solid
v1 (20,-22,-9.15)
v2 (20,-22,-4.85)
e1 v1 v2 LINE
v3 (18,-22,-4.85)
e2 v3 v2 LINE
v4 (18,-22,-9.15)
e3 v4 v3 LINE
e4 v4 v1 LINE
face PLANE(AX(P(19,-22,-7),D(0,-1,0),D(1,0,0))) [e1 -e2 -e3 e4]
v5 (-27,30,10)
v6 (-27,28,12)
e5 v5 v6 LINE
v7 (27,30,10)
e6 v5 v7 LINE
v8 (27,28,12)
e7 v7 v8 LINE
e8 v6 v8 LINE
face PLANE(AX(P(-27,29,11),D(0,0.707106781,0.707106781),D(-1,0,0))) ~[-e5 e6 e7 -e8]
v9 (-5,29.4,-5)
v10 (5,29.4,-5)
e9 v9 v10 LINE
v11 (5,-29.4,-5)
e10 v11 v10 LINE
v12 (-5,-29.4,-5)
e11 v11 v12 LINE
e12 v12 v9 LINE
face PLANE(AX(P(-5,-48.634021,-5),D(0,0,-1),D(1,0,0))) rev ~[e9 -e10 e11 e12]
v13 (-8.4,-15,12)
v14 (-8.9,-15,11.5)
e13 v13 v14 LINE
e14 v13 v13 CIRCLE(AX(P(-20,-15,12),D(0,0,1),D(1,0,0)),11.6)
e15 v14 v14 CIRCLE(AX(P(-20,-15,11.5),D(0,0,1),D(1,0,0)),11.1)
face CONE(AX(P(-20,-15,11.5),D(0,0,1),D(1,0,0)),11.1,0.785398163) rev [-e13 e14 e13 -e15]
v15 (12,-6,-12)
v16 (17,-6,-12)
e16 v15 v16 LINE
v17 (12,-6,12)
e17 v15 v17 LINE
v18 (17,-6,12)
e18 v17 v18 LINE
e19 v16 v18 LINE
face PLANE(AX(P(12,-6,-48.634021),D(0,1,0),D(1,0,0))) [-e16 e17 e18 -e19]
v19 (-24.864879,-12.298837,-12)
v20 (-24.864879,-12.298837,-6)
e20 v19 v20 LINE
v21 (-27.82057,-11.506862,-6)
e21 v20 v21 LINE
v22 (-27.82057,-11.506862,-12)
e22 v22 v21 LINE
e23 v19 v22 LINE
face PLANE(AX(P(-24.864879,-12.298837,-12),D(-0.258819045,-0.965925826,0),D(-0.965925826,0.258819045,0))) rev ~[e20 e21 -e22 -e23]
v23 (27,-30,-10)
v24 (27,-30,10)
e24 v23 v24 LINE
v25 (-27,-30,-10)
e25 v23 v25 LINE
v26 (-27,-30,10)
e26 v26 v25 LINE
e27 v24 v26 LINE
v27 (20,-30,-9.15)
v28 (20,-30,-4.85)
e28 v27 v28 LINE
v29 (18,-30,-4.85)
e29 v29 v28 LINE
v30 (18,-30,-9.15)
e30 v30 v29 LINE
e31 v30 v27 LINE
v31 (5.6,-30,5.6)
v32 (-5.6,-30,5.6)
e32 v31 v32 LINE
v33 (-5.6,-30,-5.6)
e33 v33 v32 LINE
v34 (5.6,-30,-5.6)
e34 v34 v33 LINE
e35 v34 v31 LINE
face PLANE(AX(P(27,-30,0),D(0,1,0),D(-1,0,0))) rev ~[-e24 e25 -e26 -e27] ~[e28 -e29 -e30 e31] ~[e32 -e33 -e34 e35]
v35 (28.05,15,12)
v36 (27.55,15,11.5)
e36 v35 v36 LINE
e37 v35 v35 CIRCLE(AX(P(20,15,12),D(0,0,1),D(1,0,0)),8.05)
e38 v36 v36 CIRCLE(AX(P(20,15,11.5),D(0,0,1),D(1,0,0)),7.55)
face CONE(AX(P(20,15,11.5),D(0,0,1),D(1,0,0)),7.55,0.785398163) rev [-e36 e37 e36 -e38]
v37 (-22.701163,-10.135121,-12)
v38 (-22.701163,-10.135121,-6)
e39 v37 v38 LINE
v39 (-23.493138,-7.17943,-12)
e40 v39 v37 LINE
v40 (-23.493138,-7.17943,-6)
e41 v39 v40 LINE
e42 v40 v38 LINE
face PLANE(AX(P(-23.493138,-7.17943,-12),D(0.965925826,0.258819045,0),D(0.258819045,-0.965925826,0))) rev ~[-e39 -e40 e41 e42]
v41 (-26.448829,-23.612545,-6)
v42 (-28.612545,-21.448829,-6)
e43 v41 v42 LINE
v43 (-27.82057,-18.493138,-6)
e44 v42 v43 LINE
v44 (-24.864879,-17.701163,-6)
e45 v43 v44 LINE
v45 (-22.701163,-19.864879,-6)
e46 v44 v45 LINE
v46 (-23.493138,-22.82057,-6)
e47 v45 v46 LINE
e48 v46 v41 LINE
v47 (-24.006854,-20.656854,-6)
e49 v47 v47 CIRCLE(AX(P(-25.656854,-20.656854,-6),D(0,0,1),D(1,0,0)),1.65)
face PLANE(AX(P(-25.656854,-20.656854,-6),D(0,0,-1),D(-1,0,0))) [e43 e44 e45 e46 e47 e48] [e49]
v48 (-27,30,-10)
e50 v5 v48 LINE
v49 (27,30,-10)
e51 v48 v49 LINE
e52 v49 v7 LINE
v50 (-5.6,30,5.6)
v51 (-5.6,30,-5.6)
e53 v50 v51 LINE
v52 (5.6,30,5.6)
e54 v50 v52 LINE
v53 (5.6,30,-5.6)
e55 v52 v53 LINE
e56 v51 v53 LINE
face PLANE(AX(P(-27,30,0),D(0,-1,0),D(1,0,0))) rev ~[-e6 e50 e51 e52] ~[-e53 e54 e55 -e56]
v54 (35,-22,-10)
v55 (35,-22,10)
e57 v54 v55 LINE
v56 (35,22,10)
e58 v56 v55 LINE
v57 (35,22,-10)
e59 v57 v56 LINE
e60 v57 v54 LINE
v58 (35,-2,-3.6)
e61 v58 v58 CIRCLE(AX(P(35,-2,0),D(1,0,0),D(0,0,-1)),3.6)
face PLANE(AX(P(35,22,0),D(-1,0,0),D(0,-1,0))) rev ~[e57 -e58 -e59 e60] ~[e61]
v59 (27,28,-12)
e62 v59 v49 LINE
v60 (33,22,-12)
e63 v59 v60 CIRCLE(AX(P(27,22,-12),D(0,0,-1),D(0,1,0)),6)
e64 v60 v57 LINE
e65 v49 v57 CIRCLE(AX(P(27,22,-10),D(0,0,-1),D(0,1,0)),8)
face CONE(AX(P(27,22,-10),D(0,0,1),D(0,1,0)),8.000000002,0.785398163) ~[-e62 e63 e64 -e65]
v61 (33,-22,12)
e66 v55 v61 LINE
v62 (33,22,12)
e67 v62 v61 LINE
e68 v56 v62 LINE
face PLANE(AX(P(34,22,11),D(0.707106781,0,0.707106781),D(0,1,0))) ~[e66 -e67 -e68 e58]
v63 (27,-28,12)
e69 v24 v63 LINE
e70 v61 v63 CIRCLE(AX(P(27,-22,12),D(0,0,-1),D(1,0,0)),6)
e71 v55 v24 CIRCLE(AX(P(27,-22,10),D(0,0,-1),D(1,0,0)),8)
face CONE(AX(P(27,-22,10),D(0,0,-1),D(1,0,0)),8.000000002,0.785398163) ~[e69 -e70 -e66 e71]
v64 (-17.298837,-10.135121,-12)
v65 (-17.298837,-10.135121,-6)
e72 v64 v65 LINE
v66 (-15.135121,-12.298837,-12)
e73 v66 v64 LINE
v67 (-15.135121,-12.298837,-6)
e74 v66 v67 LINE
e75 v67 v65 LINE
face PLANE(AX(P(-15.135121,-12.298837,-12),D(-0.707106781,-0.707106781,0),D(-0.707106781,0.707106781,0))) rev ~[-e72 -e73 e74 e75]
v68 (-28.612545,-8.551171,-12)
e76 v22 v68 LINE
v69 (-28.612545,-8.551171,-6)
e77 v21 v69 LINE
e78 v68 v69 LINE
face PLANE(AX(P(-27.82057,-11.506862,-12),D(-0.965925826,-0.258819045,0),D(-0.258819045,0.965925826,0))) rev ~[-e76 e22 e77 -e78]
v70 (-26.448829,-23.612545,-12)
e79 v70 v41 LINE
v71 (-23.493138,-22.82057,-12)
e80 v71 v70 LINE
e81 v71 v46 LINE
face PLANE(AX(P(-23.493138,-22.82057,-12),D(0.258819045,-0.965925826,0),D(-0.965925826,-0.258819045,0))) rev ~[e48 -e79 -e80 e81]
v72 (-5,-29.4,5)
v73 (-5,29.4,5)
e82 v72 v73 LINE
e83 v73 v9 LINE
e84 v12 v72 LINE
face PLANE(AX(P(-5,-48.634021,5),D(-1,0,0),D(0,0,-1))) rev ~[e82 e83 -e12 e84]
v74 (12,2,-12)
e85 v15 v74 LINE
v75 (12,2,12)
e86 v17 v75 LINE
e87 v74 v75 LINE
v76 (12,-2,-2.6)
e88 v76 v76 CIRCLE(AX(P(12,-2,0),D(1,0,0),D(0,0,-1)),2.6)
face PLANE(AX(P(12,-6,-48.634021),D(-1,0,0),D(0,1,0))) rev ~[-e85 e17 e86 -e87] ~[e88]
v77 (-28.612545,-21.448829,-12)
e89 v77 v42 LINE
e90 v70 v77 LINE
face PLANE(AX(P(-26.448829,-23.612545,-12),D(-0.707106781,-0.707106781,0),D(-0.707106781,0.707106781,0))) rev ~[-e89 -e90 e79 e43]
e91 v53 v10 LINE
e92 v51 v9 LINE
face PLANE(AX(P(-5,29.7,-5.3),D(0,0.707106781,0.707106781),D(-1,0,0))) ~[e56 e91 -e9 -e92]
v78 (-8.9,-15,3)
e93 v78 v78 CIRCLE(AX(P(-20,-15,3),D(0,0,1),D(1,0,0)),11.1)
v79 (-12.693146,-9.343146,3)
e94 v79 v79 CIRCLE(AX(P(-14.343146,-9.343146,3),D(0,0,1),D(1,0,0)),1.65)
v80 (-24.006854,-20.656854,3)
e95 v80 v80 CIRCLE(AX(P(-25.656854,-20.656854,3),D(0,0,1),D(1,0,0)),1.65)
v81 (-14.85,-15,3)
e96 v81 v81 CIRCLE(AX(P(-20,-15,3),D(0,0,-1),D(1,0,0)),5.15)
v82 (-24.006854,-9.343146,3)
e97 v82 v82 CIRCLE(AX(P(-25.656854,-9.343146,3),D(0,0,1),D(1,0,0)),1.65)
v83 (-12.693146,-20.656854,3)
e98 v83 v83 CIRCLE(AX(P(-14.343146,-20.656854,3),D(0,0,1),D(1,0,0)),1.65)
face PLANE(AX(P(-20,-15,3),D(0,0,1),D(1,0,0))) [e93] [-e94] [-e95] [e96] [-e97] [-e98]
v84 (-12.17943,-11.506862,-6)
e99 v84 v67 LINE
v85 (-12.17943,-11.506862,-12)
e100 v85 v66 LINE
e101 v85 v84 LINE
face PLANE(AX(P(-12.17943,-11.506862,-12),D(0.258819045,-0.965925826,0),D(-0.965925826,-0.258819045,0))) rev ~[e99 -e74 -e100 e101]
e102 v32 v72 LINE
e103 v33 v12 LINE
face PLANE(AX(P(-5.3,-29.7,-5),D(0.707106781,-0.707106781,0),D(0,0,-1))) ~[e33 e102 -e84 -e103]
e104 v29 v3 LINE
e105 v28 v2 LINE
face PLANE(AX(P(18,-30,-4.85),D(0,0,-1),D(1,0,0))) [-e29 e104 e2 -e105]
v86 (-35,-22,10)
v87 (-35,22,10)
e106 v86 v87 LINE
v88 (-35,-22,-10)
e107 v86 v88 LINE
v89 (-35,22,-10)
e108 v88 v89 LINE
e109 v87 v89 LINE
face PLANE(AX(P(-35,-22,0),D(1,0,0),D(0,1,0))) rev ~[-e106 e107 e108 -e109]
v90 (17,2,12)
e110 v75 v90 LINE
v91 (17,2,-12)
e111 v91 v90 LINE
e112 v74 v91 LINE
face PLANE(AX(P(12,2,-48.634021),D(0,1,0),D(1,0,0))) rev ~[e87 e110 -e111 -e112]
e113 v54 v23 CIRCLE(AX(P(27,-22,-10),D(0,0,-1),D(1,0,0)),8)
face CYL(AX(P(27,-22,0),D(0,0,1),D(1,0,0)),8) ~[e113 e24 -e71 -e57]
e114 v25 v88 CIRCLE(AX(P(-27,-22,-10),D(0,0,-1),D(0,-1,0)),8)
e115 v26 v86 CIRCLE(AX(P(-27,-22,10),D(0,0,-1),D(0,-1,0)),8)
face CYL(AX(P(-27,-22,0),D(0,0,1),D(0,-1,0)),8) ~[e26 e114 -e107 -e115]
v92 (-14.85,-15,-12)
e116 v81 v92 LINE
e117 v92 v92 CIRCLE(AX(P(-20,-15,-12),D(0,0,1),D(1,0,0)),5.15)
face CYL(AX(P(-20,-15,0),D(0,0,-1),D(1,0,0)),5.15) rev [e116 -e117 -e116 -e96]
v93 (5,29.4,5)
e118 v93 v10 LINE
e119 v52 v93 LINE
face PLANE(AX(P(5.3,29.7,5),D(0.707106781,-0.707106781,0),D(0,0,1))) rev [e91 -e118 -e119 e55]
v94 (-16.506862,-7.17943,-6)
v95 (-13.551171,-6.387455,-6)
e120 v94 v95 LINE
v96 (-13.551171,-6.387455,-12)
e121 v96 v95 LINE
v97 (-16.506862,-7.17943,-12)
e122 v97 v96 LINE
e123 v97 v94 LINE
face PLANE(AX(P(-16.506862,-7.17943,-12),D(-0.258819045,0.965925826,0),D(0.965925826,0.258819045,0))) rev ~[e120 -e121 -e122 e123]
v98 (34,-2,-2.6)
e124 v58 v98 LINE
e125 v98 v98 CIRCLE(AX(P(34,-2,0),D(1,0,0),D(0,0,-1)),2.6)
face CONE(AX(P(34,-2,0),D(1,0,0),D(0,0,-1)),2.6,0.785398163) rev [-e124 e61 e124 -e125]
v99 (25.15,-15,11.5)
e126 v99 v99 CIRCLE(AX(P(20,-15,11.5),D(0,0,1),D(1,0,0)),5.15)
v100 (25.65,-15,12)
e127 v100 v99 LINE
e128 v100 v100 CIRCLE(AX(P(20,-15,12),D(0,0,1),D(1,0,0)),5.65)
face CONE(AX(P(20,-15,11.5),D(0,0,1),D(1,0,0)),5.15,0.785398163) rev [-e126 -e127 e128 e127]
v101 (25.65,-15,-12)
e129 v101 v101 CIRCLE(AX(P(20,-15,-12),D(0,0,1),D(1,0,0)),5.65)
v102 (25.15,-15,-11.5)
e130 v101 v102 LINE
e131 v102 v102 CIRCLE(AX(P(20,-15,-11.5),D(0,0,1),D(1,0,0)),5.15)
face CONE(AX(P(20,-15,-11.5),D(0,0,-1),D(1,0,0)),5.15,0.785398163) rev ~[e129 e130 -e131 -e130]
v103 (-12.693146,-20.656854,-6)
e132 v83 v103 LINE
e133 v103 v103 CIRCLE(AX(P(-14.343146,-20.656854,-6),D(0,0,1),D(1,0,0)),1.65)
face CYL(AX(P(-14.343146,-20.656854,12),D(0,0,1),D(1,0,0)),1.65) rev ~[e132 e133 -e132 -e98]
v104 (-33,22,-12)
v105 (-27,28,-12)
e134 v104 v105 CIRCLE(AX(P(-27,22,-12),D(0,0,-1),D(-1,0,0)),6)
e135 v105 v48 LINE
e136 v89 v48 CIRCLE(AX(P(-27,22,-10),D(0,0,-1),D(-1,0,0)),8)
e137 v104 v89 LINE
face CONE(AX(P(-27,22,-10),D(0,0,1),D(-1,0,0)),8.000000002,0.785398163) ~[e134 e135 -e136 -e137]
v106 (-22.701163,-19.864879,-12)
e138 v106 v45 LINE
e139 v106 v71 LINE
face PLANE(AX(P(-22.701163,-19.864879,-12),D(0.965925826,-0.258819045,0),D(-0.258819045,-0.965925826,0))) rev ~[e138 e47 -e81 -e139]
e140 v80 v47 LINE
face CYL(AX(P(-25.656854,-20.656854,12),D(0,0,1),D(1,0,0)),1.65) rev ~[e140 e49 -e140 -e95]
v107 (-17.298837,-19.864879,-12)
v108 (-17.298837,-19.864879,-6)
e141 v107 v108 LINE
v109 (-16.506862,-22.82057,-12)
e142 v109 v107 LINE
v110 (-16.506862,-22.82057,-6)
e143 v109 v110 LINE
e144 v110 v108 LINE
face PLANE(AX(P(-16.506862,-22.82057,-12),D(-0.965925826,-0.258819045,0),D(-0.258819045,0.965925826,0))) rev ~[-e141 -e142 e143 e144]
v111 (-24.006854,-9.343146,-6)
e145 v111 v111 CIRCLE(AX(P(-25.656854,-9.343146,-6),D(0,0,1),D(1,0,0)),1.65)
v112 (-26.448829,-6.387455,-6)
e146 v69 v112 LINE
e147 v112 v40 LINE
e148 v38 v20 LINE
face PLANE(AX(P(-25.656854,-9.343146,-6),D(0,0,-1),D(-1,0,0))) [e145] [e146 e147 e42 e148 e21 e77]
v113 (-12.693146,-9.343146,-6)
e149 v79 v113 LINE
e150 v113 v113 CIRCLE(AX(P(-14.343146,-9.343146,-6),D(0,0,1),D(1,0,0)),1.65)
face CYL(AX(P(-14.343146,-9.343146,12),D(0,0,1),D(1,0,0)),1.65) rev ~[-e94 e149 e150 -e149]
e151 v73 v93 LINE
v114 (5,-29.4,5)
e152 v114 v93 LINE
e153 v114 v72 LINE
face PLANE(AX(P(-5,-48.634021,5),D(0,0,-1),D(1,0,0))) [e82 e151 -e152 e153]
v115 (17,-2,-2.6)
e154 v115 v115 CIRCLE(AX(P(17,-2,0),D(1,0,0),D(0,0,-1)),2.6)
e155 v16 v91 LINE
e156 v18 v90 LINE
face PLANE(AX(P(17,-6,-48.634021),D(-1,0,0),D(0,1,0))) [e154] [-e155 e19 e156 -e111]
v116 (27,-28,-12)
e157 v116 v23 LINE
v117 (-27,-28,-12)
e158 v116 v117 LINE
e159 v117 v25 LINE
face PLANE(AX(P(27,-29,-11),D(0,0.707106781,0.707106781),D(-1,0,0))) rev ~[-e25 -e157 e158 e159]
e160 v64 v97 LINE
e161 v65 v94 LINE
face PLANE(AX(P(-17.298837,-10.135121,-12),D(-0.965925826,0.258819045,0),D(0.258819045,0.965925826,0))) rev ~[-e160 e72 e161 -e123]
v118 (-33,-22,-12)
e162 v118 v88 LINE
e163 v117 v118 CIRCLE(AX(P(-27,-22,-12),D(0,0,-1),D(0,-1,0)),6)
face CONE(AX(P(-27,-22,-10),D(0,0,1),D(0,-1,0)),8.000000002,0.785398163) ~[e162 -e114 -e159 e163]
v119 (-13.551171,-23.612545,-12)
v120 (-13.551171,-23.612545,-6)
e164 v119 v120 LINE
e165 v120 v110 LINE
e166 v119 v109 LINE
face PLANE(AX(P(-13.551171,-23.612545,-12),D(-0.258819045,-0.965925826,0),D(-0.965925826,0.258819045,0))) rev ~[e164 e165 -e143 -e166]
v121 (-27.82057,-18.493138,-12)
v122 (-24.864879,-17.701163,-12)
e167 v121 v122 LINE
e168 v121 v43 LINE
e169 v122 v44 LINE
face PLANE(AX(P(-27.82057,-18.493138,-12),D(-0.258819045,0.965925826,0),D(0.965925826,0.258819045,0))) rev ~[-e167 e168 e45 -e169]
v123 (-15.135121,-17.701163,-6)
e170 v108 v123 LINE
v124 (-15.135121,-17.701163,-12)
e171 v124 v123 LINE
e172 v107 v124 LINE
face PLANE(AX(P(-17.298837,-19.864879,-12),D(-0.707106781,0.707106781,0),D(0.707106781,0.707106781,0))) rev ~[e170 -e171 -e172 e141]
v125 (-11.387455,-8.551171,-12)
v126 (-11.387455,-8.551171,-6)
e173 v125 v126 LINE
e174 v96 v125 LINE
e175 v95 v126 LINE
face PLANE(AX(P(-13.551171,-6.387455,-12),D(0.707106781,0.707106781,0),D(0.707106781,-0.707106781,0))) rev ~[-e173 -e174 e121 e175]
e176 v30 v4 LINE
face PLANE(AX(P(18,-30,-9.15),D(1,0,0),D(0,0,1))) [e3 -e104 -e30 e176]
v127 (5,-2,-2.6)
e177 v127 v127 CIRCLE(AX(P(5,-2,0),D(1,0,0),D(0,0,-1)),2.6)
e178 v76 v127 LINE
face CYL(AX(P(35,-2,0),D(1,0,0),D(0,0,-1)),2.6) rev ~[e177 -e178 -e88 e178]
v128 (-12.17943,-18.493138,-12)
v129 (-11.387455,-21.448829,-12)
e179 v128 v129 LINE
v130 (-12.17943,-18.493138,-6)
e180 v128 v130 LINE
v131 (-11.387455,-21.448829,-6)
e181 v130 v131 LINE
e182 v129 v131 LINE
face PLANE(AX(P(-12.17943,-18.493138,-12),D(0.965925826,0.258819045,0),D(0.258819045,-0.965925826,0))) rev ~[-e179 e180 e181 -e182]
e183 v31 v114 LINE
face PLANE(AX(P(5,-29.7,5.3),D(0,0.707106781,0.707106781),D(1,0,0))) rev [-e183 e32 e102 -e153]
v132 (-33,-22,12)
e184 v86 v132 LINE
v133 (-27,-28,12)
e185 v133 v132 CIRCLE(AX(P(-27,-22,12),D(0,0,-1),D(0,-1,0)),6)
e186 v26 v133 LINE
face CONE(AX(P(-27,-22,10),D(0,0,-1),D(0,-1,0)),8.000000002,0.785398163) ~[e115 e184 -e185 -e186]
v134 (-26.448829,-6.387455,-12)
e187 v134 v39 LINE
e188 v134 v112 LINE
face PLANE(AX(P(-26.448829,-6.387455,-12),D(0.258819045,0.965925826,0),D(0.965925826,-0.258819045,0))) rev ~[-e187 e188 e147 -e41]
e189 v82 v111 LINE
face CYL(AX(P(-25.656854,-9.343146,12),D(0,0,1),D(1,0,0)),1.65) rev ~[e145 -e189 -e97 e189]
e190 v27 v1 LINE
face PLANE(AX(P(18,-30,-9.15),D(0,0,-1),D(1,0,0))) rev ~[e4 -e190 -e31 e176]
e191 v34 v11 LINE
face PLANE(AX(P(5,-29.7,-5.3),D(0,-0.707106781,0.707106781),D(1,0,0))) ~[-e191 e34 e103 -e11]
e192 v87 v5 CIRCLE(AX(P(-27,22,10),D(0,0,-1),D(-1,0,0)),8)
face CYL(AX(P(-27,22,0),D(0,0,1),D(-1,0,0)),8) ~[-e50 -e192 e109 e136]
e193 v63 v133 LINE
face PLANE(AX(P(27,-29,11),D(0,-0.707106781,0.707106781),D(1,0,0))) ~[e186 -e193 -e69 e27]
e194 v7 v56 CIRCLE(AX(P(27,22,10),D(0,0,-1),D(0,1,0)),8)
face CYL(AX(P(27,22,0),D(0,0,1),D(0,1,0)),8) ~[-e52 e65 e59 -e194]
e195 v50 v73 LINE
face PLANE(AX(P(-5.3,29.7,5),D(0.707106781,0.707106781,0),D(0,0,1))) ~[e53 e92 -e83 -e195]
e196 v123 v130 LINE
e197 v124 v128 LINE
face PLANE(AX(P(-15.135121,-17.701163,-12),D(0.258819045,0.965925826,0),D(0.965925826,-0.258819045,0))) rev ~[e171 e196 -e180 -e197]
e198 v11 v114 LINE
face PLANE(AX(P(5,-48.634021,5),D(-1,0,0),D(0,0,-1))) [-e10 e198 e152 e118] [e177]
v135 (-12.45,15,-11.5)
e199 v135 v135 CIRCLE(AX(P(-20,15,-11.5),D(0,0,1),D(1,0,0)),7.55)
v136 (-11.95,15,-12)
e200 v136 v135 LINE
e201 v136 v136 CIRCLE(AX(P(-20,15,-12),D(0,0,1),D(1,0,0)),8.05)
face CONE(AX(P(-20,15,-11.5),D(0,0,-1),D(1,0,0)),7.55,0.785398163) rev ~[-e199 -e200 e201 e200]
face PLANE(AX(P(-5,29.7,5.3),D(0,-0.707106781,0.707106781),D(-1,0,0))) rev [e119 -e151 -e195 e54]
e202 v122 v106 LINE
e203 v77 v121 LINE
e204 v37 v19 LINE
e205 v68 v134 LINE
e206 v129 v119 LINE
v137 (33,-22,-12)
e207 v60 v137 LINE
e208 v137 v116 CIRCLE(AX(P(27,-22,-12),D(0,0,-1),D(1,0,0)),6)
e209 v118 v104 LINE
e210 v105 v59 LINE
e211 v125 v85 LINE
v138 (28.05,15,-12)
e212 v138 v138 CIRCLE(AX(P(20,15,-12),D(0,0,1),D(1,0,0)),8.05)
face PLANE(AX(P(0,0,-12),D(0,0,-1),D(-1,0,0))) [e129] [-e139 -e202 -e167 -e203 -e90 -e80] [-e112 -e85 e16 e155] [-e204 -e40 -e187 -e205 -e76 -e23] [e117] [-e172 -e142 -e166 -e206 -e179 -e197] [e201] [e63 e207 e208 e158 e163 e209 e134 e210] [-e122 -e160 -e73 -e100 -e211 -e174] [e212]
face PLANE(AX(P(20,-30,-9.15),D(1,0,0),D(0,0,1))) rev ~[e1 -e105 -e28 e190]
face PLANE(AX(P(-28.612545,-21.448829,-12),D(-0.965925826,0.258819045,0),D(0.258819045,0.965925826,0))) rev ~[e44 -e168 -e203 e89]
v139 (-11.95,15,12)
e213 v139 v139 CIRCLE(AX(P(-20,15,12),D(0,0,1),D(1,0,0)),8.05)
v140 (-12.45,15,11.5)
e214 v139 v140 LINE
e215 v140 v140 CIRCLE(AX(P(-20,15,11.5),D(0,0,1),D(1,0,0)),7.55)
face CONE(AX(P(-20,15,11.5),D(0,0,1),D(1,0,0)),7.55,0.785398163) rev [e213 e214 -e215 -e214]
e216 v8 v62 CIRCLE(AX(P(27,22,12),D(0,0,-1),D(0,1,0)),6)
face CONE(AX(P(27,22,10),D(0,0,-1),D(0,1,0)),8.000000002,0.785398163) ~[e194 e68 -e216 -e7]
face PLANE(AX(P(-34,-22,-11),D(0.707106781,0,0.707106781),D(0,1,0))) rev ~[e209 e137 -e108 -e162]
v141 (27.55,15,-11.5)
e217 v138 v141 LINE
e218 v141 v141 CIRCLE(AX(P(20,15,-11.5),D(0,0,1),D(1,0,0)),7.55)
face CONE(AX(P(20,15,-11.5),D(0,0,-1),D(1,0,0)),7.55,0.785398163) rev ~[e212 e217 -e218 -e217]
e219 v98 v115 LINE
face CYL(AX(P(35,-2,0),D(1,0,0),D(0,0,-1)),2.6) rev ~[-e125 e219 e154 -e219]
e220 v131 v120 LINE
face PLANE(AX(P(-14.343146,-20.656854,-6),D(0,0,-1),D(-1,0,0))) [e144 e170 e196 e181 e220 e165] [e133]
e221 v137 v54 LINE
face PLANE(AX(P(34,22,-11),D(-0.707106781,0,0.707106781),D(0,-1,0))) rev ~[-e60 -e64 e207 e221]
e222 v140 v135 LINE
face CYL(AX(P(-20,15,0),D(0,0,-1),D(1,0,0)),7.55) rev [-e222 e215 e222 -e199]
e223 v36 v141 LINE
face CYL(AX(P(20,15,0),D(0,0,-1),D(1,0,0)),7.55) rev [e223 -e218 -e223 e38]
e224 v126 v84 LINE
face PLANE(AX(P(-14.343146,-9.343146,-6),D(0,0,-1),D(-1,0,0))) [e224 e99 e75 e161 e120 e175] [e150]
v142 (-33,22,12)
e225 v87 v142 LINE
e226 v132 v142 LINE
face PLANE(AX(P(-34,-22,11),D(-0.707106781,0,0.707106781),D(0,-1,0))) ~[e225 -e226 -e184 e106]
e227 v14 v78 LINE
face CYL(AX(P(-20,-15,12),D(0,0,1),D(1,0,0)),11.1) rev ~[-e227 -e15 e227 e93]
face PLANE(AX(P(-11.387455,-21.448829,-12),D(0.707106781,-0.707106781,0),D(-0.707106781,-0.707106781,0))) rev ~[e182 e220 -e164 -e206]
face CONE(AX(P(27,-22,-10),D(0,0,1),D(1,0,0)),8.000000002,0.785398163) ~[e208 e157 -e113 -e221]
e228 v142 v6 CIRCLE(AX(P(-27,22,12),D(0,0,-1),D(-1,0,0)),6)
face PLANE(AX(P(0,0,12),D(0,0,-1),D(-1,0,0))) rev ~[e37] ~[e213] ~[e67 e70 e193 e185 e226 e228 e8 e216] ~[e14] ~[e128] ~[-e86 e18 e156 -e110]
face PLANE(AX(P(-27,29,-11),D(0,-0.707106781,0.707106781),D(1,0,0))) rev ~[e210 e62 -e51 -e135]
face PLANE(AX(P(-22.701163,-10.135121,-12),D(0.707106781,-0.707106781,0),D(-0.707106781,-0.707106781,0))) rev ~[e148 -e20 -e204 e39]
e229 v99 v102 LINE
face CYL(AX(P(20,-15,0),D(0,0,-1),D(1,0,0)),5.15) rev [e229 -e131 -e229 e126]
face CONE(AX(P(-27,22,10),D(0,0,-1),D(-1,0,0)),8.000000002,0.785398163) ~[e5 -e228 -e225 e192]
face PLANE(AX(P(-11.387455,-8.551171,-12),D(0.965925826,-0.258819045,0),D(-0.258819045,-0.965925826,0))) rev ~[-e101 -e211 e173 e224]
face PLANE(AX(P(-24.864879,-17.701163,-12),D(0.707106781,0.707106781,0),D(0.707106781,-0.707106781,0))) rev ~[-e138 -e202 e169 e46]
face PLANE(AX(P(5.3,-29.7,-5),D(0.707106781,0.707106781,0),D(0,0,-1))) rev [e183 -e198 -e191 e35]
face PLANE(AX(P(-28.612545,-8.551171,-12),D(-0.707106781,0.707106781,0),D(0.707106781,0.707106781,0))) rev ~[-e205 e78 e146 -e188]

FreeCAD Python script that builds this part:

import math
import FreeCAD as App
import Part
import Sketcher

V = App.Vector
Q = App.Units.Quantity


def edges_at(feature, points):
    """Names of the edges that pass closest to the given points."""
    edges = feature.Shape.Edges
    near = lambda p: min(range(len(edges)), key=lambda i: edges[i].distToShape(Part.Vertex(*p))[0])
    return sorted({f"Edge{near(p) + 1}" for p in points})

doc = App.newDocument("Part")
params = doc.addObject("Spreadsheet::Sheet", "Params")
for row, (alias, value) in enumerate([
    ("sketch1_radius", "8 mm"),
    ("sketch1_diameter", "10.3 mm"),
    ("sketch1_diameter2", "15.1 mm"),
    ("sketch1_width", "54 mm"),
    ("sketch1_height", "44 mm"),
    ("pad1_length", "24 mm"),
    ("sketch2_diameter", "22.2 mm"),
    ("pocket1_length", "9 mm"),
    ("sketch3_diameter", "3.3 mm"),
    ("pocket3_length", "6 mm"),
    ("sketch5_width", "10 mm"),
    ("chamfer_size", "2 mm"),
    ("chamfer2_size", "0.5 mm"),
    ("sketch6_diameter", "5.2 mm"),
    ("pocket5_length", "33 mm"),
    ("sketch7_width", "5 mm"),
    ("sketch7_height", "8 mm"),
    ("chamfer3_size", "1 mm"),
    ("chamfer4_size", "0.6 mm"),
    ("sketch8_width", "2 mm"),
    ("sketch8_height", "4.3 mm"),
    ("pocket7_length", "8 mm"),
], start=1):
    params.set(f"A{row}", alias)
    params.set(f"B{row}", "=" + value)
    params.setAlias(f"B{row}", alias)

body = doc.addObject("PartDesign::Body", "Body")

# Sketch on XY plane
sketch1 = body.newObject("Sketcher::SketchObject", "Sketch")
sketch1.AttachmentSupport = (doc.getObject("XY_Plane"), [""])
sketch1.MapMode = "FlatFace"
sketch1.addGeometry(Part.LineSegment(V(-27, -30, 0), V(27, -30, 0)), False)
sketch1.addGeometry(Part.ArcOfCircle(Part.Circle(V(27, -22, 0), V(0, 0, 1), 8), math.radians(-90), math.radians(0)), False)
sketch1.addGeometry(Part.LineSegment(V(35, -22, 0), V(35, 22, 0)), False)
sketch1.addGeometry(Part.ArcOfCircle(Part.Circle(V(27, 22, 0), V(0, 0, 1), 8), math.radians(0), math.radians(90)), False)
sketch1.addGeometry(Part.LineSegment(V(27, 30, 0), V(-27, 30, 0)), False)
sketch1.addGeometry(Part.ArcOfCircle(Part.Circle(V(-27, 22, 0), V(0, 0, 1), 8), math.radians(90), math.radians(180)), False)
sketch1.addGeometry(Part.LineSegment(V(-35, 22, 0), V(-35, -22, 0)), False)
sketch1.addGeometry(Part.ArcOfCircle(Part.Circle(V(-27, -22, 0), V(0, 0, 1), 8), math.radians(-180), math.radians(-90)), False)
sketch1.addGeometry(Part.Circle(V(20, -15, 0), V(0, 0, 1), 5.15), False)
sketch1.addGeometry(Part.Circle(V(-20, -15, 0), V(0, 0, 1), 5.15), False)
sketch1.addGeometry(Part.Circle(V(20, 15, 0), V(0, 0, 1), 7.55), False)
sketch1.addGeometry(Part.Circle(V(-20, 15, 0), V(0, 0, 1), 7.55), False)
sketch1.addConstraint(Sketcher.Constraint("Tangent", 0, 2, 1, 1))
sketch1.addConstraint(Sketcher.Constraint("Tangent", 1, 2, 2, 1))
sketch1.addConstraint(Sketcher.Constraint("Tangent", 2, 2, 3, 1))
sketch1.addConstraint(Sketcher.Constraint("Tangent", 3, 2, 4, 1))
sketch1.addConstraint(Sketcher.Constraint("Tangent", 4, 2, 5, 1))
sketch1.addConstraint(Sketcher.Constraint("Tangent", 5, 2, 6, 1))
sketch1.addConstraint(Sketcher.Constraint("Tangent", 6, 2, 7, 1))
sketch1.addConstraint(Sketcher.Constraint("Tangent", 7, 2, 0, 1))
sketch1.addConstraint(Sketcher.Constraint("Horizontal", 0))
sketch1.addConstraint(Sketcher.Constraint("Vertical", 2))
sketch1.addConstraint(Sketcher.Constraint("Horizontal", 4))
sketch1.addConstraint(Sketcher.Constraint("Vertical", 6))
sketch1.addConstraint(Sketcher.Constraint("Equal", 1, 3))
sketch1.addConstraint(Sketcher.Constraint("Equal", 3, 5))
sketch1.addConstraint(Sketcher.Constraint("Equal", 5, 7))
sketch1.addConstraint(Sketcher.Constraint("Equal", 8, 9))
sketch1.addConstraint(Sketcher.Constraint("Equal", 10, 11))
sketch1.addConstraint(Sketcher.Constraint("Symmetric", 1, 3, 5, 3, -1, 1))
sketch1.addConstraint(Sketcher.Constraint("Symmetric", 9, 3, 10, 3, -1, 1))
sketch1.addConstraint(Sketcher.Constraint("Symmetric", 8, 3, 11, 3, -1, 1))
sketch1.addConstraint(Sketcher.Constraint("Symmetric", 8, 3, 9, 3, -2))
sketch1.addConstraint(Sketcher.Constraint("Radius", 1, 8.0))
sketch1.addConstraint(Sketcher.Constraint("Diameter", 8, 10.3))
sketch1.addConstraint(Sketcher.Constraint("Diameter", 10, 15.1))
sketch1.addConstraint(Sketcher.Constraint("DistanceX", 0, 1, 0, 2, 54.0))
sketch1.addConstraint(Sketcher.Constraint("DistanceY", 2, 1, 2, 2, 44.0))
sketch1.addConstraint(Sketcher.Constraint("DistanceX", -1, 1, 8, 3, 20.0))
sketch1.addConstraint(Sketcher.Constraint("DistanceY", 8, 3, -1, 1, 15.0))
sketch1.setExpression("Constraints[21]", "Params.sketch1_radius")
sketch1.setExpression("Constraints[22]", "Params.sketch1_diameter")
sketch1.setExpression("Constraints[23]", "Params.sketch1_diameter2")
sketch1.setExpression("Constraints[24]", "Params.sketch1_width")
sketch1.setExpression("Constraints[25]", "Params.sketch1_height")
pad1 = body.newObject("PartDesign::Pad", "Pad")
pad1.Profile = sketch1
pad1.setExpression("Length", "Params.pad1_length")
pad1.Midplane = True

# Sketch on XY plane
sketch2 = body.newObject("Sketcher::SketchObject", "Sketch001")
sketch2.AttachmentSupport = (doc.getObject("XY_Plane"), [""])
sketch2.MapMode = "FlatFace"
sketch2.AttachmentOffset = App.Placement(V(0, 0, 12), App.Rotation())
sketch2.addGeometry(Part.Circle(V(-20, -15, 0), V(0, 0, 1), 11.1), False)
sketch2.addConstraint(Sketcher.Constraint("Diameter", 0, 22.2))
sketch2.addConstraint(Sketcher.Constraint("DistanceX", 0, 3, -1, 1, 20.0))
sketch2.addConstraint(Sketcher.Constraint("DistanceY", 0, 3, -1, 1, 15.0))
sketch2.setExpression("Constraints[0]", "Params.sketch2_diameter")
pocket1 = body.newObject("PartDesign::Pocket", "Pocket")
pocket1.Profile = sketch2
pocket1.setExpression("Length", "Params.pocket1_length")

# Sketch on XY plane
sketch3 = body.newObject("Sketcher::SketchObject", "Sketch002")
sketch3.AttachmentSupport = (doc.getObject("XY_Plane"), [""])
sketch3.MapMode = "FlatFace"
sketch3.AttachmentOffset = App.Placement(V(0, 0, 12), App.Rotation())
sketch3.addGeometry(Part.Circle(V(-25.656854, -9.343146, 0), V(0, 0, 1), 1.65), False)
sketch3.addGeometry(Part.Circle(V(-14.343146, -9.343146, 0), V(0, 0, 1), 1.65), False)
sketch3.addGeometry(Part.Circle(V(-14.343146, -20.656854, 0), V(0, 0, 1), 1.65), False)
sketch3.addGeometry(Part.Circle(V(-25.656854, -20.656854, 0), V(0, 0, 1), 1.65), False)
sketch3.addConstraint(Sketcher.Constraint("Equal", 0, 1))
sketch3.addConstraint(Sketcher.Constraint("Equal", 1, 2))
sketch3.addConstraint(Sketcher.Constraint("Equal", 2, 3))
sketch3.addConstraint(Sketcher.Constraint("Horizontal", 0, 3, 1, 3))
sketch3.addConstraint(Sketcher.Constraint("Horizontal", 2, 3, 3, 3))
sketch3.addConstraint(Sketcher.Constraint("Vertical", 1, 3, 2, 3))
sketch3.addConstraint(Sketcher.Constraint("Vertical", 0, 3, 3, 3))
sketch3.addConstraint(Sketcher.Constraint("Diameter", 0, 3.3))
sketch3.addConstraint(Sketcher.Constraint("DistanceX", 0, 3, 1, 3, 11.313708))
sketch3.addConstraint(Sketcher.Constraint("DistanceY", 2, 3, 1, 3, 11.313708))
sketch3.addConstraint(Sketcher.Constraint("DistanceX", 0, 3, -1, 1, 25.656854))
sketch3.addConstraint(Sketcher.Constraint("DistanceY", 0, 3, -1, 1, 9.343146))
sketch3.setExpression("Constraints[7]", "Params.sketch3_diameter")
pocket2 = body.newObject("PartDesign::Pocket", "Pocket001")
pocket2.Profile = sketch3
pocket2.Type = "ThroughAll"

# Sketch on XY plane
sketch4 = body.newObject("Sketcher::SketchObject", "Sketch003")
sketch4.AttachmentSupport = (doc.getObject("XY_Plane"), [""])
sketch4.MapMode = "FlatFace"
sketch4.AttachmentOffset = App.Placement(V(0, 0, -12), App.Rotation())
sketch4.addGeometry(Part.LineSegment(V(-17.298837, -10.135121, 0), V(-16.506862, -7.17943, 0)), False)
sketch4.addGeometry(Part.LineSegment(V(-16.506862, -7.17943, 0), V(-13.551171, -6.387455, 0)), False)
sketch4.addGeometry(Part.LineSegment(V(-13.551171, -6.387455, 0), V(-11.387455, -8.551171, 0)), False)
sketch4.addGeometry(Part.LineSegment(V(-11.387455, -8.551171, 0), V(-12.17943, -11.506862, 0)), False)
sketch4.addGeometry(Part.LineSegment(V(-12.17943, -11.506862, 0), V(-15.135121, -12.298837, 0)), False)
sketch4.addGeometry(Part.LineSegment(V(-15.135121, -12.298837, 0), V(-17.298837, -10.135121, 0)), False)
sketch4.addGeometry(Part.LineSegment(V(-23.493138, -7.17943, 0), V(-22.701163, -10.135121, 0)), False)
sketch4.addGeometry(Part.LineSegment(V(-22.701163, -10.135121, 0), V(-24.864879, -12.298837, 0)), False)
sketch4.addGeometry(Part.LineSegment(V(-24.864879, -12.298837, 0), V(-27.82057, -11.506862, 0)), False)
sketch4.addGeometry(Part.LineSegment(V(-27.82057, -11.506862, 0), V(-28.612545, -8.551171, 0)), False)
sketch4.addGeometry(Part.LineSegment(V(-28.612545, -8.551171, 0), V(-26.448829, -6.387455, 0)), False)
sketch4.addGeometry(Part.LineSegment(V(-26.448829, -6.387455, 0), V(-23.493138, -7.17943, 0)), False)
sketch4.addGeometry(Part.LineSegment(V(-24.864879, -17.701163, 0), V(-22.701163, -19.864879, 0)), False)
sketch4.addGeometry(Part.LineSegment(V(-22.701163, -19.864879, 0), V(-23.493138, -22.82057, 0)), False)
sketch4.addGeometry(Part.LineSegment(V(-23.493138, -22.82057, 0), V(-26.448829, -23.612545, 0)), False)
sketch4.addGeometry(Part.LineSegment(V(-26.448829, -23.612545, 0), V(-28.612545, -21.448829, 0)), False)
sketch4.addGeometry(Part.LineSegment(V(-28.612545, -21.448829, 0), V(-27.82057, -18.493138, 0)), False)
sketch4.addGeometry(Part.LineSegment(V(-27.82057, -18.493138, 0), V(-24.864879, -17.701163, 0)), False)
sketch4.addGeometry(Part.LineSegment(V(-15.135121, -17.701163, 0), V(-12.17943, -18.493138, 0)), False)
sketch4.addGeometry(Part.LineSegment(V(-12.17943, -18.493138, 0), V(-11.387455, -21.448829, 0)), False)
sketch4.addGeometry(Part.LineSegment(V(-11.387455, -21.448829, 0), V(-13.551171, -23.612545, 0)), False)
sketch4.addGeometry(Part.LineSegment(V(-13.551171, -23.612545, 0), V(-16.506862, -22.82057, 0)), False)
sketch4.addGeometry(Part.LineSegment(V(-16.506862, -22.82057, 0), V(-17.298837, -19.864879, 0)), False)
sketch4.addGeometry(Part.LineSegment(V(-17.298837, -19.864879, 0), V(-15.135121, -17.701163, 0)), False)
sketch4.addConstraint(Sketcher.Constraint("Coincident", 0, 2, 1, 1))
sketch4.addConstraint(Sketcher.Constraint("Coincident", 1, 2, 2, 1))
sketch4.addConstraint(Sketcher.Constraint("Coincident", 2, 2, 3, 1))
sketch4.addConstraint(Sketcher.Constraint("Coincident", 3, 2, 4, 1))
sketch4.addConstraint(Sketcher.Constraint("Coincident", 4, 2, 5, 1))
sketch4.addConstraint(Sketcher.Constraint("Coincident", 5, 2, 0, 1))
sketch4.addConstraint(Sketcher.Constraint("Coincident", 6, 2, 7, 1))
sketch4.addConstraint(Sketcher.Constraint("Coincident", 7, 2, 8, 1))
sketch4.addConstraint(Sketcher.Constraint("Coincident", 8, 2, 9, 1))
sketch4.addConstraint(Sketcher.Constraint("Coincident", 9, 2, 10, 1))
sketch4.addConstraint(Sketcher.Constraint("Coincident", 10, 2, 11, 1))
sketch4.addConstraint(Sketcher.Constraint("Coincident", 11, 2, 6, 1))
sketch4.addConstraint(Sketcher.Constraint("Coincident", 12, 2, 13, 1))
sketch4.addConstraint(Sketcher.Constraint("Coincident", 13, 2, 14, 1))
sketch4.addConstraint(Sketcher.Constraint("Coincident", 14, 2, 15, 1))
sketch4.addConstraint(Sketcher.Constraint("Coincident", 15, 2, 16, 1))
sketch4.addConstraint(Sketcher.Constraint("Coincident", 16, 2, 17, 1))
sketch4.addConstraint(Sketcher.Constraint("Coincident", 17, 2, 12, 1))
sketch4.addConstraint(Sketcher.Constraint("Coincident", 18, 2, 19, 1))
sketch4.addConstraint(Sketcher.Constraint("Coincident", 19, 2, 20, 1))
sketch4.addConstraint(Sketcher.Constraint("Coincident", 20, 2, 21, 1))
sketch4.addConstraint(Sketcher.Constraint("Coincident", 21, 2, 22, 1))
sketch4.addConstraint(Sketcher.Constraint("Coincident", 22, 2, 23, 1))
sketch4.addConstraint(Sketcher.Constraint("Coincident", 23, 2, 18, 1))
sketch4.addConstraint(Sketcher.Constraint("Parallel", 0, 3))
sketch4.addConstraint(Sketcher.Constraint("Parallel", 1, 4))
sketch4.addConstraint(Sketcher.Constraint("Parallel", 2, 5))
sketch4.addConstraint(Sketcher.Constraint("Perpendicular", 4, 6))
sketch4.addConstraint(Sketcher.Constraint("Perpendicular", 5, 7))
sketch4.addConstraint(Sketcher.Constraint("Perpendicular", 3, 8))
sketch4.addConstraint(Sketcher.Constraint("Parallel", 6, 9))
sketch4.addConstraint(Sketcher.Constraint("Parallel", 7, 10))
sketch4.addConstraint(Sketcher.Constraint("Parallel", 8, 11))
sketch4.addConstraint(Sketcher.Constraint("Perpendicular", 10, 12))
sketch4.addConstraint(Sketcher.Constraint("Perpendicular", 11, 13))
sketch4.addConstraint(Sketcher.Constraint("Perpendicular", 9, 14))
sketch4.addConstraint(Sketcher.Constraint("Parallel", 12, 15))
sketch4.addConstraint(Sketcher.Constraint("Parallel", 13, 16))
sketch4.addConstraint(Sketcher.Constraint("Parallel", 14, 17))
sketch4.addConstraint(Sketcher.Constraint("Perpendicular", 16, 18))
sketch4.addConstraint(Sketcher.Constraint("Perpendicular", 17, 19))
sketch4.addConstraint(Sketcher.Constraint("Perpendicular", 15, 20))
sketch4.addConstraint(Sketcher.Constraint("Parallel", 18, 21))
sketch4.addConstraint(Sketcher.Constraint("Parallel", 19, 22))
sketch4.addConstraint(Sketcher.Constraint("Parallel", 20, 23))
sketch4.addConstraint(Sketcher.Constraint("Horizontal", 5, 2, 6, 2))
sketch4.addConstraint(Sketcher.Constraint("Horizontal", 4, 2, 7, 2))
sketch4.addConstraint(Sketcher.Constraint("Horizontal", 3, 2, 8, 2))
sketch4.addConstraint(Sketcher.Constraint("Horizontal", 2, 2, 9, 2))
sketch4.addConstraint(Sketcher.Constraint("Horizontal", 1, 2, 10, 2))
sketch4.addConstraint(Sketcher.Constraint("Horizontal", 16, 2, 18, 2))
sketch4.addConstraint(Sketcher.Constraint("Horizontal", 15, 2, 19, 2))
sketch4.addConstraint(Sketcher.Constraint("Horizontal", 14, 2, 20, 2))
sketch4.addConstraint(Sketcher.Constraint("Horizontal", 13, 2, 21, 2))
sketch4.addConstraint(Sketcher.Constraint("Horizontal", 12, 2, 22, 2))
sketch4.addConstraint(Sketcher.Constraint("Vertical", 6, 2, 12, 2))
sketch4.addConstraint(Sketcher.Constraint("Vertical", 11, 2, 13, 2))
sketch4.addConstraint(Sketcher.Constraint("Vertical", 10, 2, 14, 2))
sketch4.addConstraint(Sketcher.Constraint("Vertical", 9, 2, 15, 2))
sketch4.addConstraint(Sketcher.Constraint("Vertical", 8, 2, 16, 2))
sketch4.addConstraint(Sketcher.Constraint("Vertical", 3, 2, 18, 2))
sketch4.addConstraint(Sketcher.Constraint("Vertical", 2, 2, 19, 2))
sketch4.addConstraint(Sketcher.Constraint("Vertical", 1, 2, 20, 2))
sketch4.addConstraint(Sketcher.Constraint("Equal", 0, 1))
sketch4.addConstraint(Sketcher.Constraint("Equal", 1, 2))
sketch4.addConstraint(Sketcher.Constraint("Equal", 2, 3))
sketch4.addConstraint(Sketcher.Constraint("Angle", 0, Q("75 deg")))
sketch4.addConstraint(Sketcher.Constraint("DistanceX", 6, 2, 0, 2, 6.194302))
sketch4.addConstraint(Sketcher.Constraint("DistanceY", 16, 2, 7, 2, 6.194302))
sketch4.addConstraint(Sketcher.Constraint("DistanceX", 0, 2, -1, 1, 16.506862))
sketch4.addConstraint(Sketcher.Constraint("DistanceY", 0, 2, -1, 1, 7.17943))
sketch4.addConstraint(Sketcher.Constraint("DistanceX", 1, 2, -1, 1, 13.551171))
pocket3 = body.newObject("PartDesign::Pocket", "Pocket002")
pocket3.Profile = sketch4
pocket3.setExpression("Length", "Params.pocket3_length")
pocket3.Reversed = True

# Sketch on XZ plane
sketch5 = body.newObject("Sketcher::SketchObject", "Sketch004")
sketch5.AttachmentSupport = (doc.getObject("XZ_Plane"), [""])
sketch5.MapMode = "FlatFace"
sketch5.addGeometry(Part.LineSegment(V(-5, -5, 0), V(-5, 5, 0)), False)
sketch5.addGeometry(Part.LineSegment(V(-5, 5, 0), V(5, 5, 0)), False)
sketch5.addGeometry(Part.LineSegment(V(5, 5, 0), V(5, -5, 0)), False)
sketch5.addGeometry(Part.LineSegment(V(5, -5, 0), V(-5, -5, 0)), False)
sketch5.addConstraint(Sketcher.Constraint("Coincident", 0, 2, 1, 1))
sketch5.addConstraint(Sketcher.Constraint("Coincident", 1, 2, 2, 1))
sketch5.addConstraint(Sketcher.Constraint("Coincident", 2, 2, 3, 1))
sketch5.addConstraint(Sketcher.Constraint("Coincident", 3, 2, 0, 1))
sketch5.addConstraint(Sketcher.Constraint("Vertical", 0))
sketch5.addConstraint(Sketcher.Constraint("Horizontal", 1))
sketch5.addConstraint(Sketcher.Constraint("Vertical", 2))
sketch5.addConstraint(Sketcher.Constraint("Horizontal", 3))
sketch5.addConstraint(Sketcher.Constraint("Symmetric", 0, 2, 2, 2, -1, 1))
sketch5.addConstraint(Sketcher.Constraint("Equal", 3, 0))
sketch5.addConstraint(Sketcher.Constraint("DistanceX", 1, 1, 1, 2, 10.0))
sketch5.setExpression("Constraints[10]", "Params.sketch5_width")
pocket4 = body.newObject("PartDesign::Pocket", "Pocket003")
pocket4.Profile = sketch5
pocket4.Type = "ThroughAll"
pocket4.Midplane = True
doc.recompute()

chamfer = body.newObject("PartDesign::Chamfer", "Chamfer")
chamfer.Base = (pocket4, edges_at(pocket4, [
    (35, 0, -12),
    (32.657, -27.657, -12),
    (0, -30, -12),
    (-32.657, -27.657, -12),
    (32.657, -27.657, 12),
    (35, 0, 12),
    (32.657, 27.657, 12),
    (0, 30, 12),
    (-32.657, 27.657, 12),
    (-35, 0, 12),
    (-32.657, -27.657, 12),
    (-35, 0, -12),
    (0, -30, 12),
    (-32.657, 27.657, -12),
    (0, 30, -12),
    (32.657, 27.657, -12),
]))
chamfer.setExpression("Size", "Params.chamfer_size")
doc.recompute()

chamfer2 = body.newObject("PartDesign::Chamfer", "Chamfer001")
chamfer2.Base = (chamfer, edges_at(chamfer, [
    (-27.55, 15, -12),
    (-27.55, 15, 12),
    (12.45, 15, -12),
    (12.45, 15, 12),
    (14.85, -15, -12),
    (14.85, -15, 12),
    (-31.1, -15, 12),
]))
chamfer2.setExpression("Size", "Params.chamfer2_size")

# Sketch on YZ plane
sketch6 = body.newObject("Sketcher::SketchObject", "Sketch005")
sketch6.AttachmentSupport = (doc.getObject("YZ_Plane"), [""])
sketch6.MapMode = "FlatFace"
sketch6.AttachmentOffset = App.Placement(V(0, 0, 35), App.Rotation())
sketch6.addGeometry(Part.Circle(V(-2, 0, 0), V(0, 0, 1), 2.6), False)
sketch6.addConstraint(Sketcher.Constraint("PointOnObject", 0, 3, -1))
sketch6.addConstraint(Sketcher.Constraint("Diameter", 0, 5.2))
sketch6.addConstraint(Sketcher.Constraint("DistanceX", 0, 3, -1, 1, 2.0))
sketch6.setExpression("Constraints[1]", "Params.sketch6_diameter")
pocket5 = body.newObject("PartDesign::Pocket", "Pocket004")
pocket5.Profile = sketch6
pocket5.setExpression("Length", "Params.pocket5_length")

# Sketch on XY plane
sketch7 = body.newObject("Sketcher::SketchObject", "Sketch006")
sketch7.AttachmentSupport = (doc.getObject("XY_Plane"), [""])
sketch7.MapMode = "FlatFace"
sketch7.addGeometry(Part.LineSegment(V(12, 2, 0), V(12, -6, 0)), False)
sketch7.addGeometry(Part.LineSegment(V(12, -6, 0), V(17, -6, 0)), False)
sketch7.addGeometry(Part.LineSegment(V(17, -6, 0), V(17, 2, 0)), False)
sketch7.addGeometry(Part.LineSegment(V(17, 2, 0), V(12, 2, 0)), False)
sketch7.addConstraint(Sketcher.Constraint("Coincident", 0, 2, 1, 1))
sketch7.addConstraint(Sketcher.Constraint("Coincident", 1, 2, 2, 1))
sketch7.addConstraint(Sketcher.Constraint("Coincident", 2, 2, 3, 1))
sketch7.addConstraint(Sketcher.Constraint("Coincident", 3, 2, 0, 1))
sketch7.addConstraint(Sketcher.Constraint("Vertical", 0))
sketch7.addConstraint(Sketcher.Constraint("Horizontal", 1))
sketch7.addConstraint(Sketcher.Constraint("Vertical", 2))
sketch7.addConstraint(Sketcher.Constraint("Horizontal", 3))
sketch7.addConstraint(Sketcher.Constraint("DistanceX", 1, 1, 1, 2, 5.0))
sketch7.addConstraint(Sketcher.Constraint("DistanceY", 0, 2, 0, 1, 8.0))
sketch7.addConstraint(Sketcher.Constraint("DistanceX", -1, 1, 0, 2, 12.0))
sketch7.addConstraint(Sketcher.Constraint("DistanceY", 0, 2, -1, 1, 6.0))
sketch7.setExpression("Constraints[8]", "Params.sketch7_width")
sketch7.setExpression("Constraints[9]", "Params.sketch7_height")
pocket6 = body.newObject("PartDesign::Pocket", "Pocket005")
pocket6.Profile = sketch7
pocket6.Type = "ThroughAll"
pocket6.Midplane = True
doc.recompute()

chamfer3 = body.newObject("PartDesign::Chamfer", "Chamfer002")
chamfer3.Base = (pocket6, edges_at(pocket6, [(35, -2, 2.6)]))
chamfer3.setExpression("Size", "Params.chamfer3_size")
doc.recompute()

chamfer4 = body.newObject("PartDesign::Chamfer", "Chamfer003")
chamfer4.Base = (chamfer3, edges_at(chamfer3, [
    (-5, -30, 0),
    (0, -30, -5),
    (5, -30, 0),
    (0, -30, 5),
    (-5, 30, 0),
    (0, 30, 5),
    (5, 30, 0),
    (0, 30, -5),
]))
chamfer4.setExpression("Size", "Params.chamfer4_size")

# Sketch on XZ plane
sketch8 = body.newObject("Sketcher::SketchObject", "Sketch007")
sketch8.AttachmentSupport = (doc.getObject("XZ_Plane"), [""])
sketch8.MapMode = "FlatFace"
sketch8.AttachmentOffset = App.Placement(V(0, 0, 30), App.Rotation())
sketch8.addGeometry(Part.LineSegment(V(18, -4.85, 0), V(18, -9.15, 0)), False)
sketch8.addGeometry(Part.LineSegment(V(18, -9.15, 0), V(20, -9.15, 0)), False)
sketch8.addGeometry(Part.LineSegment(V(20, -9.15, 0), V(20, -4.85, 0)), False)
sketch8.addGeometry(Part.LineSegment(V(20, -4.85, 0), V(18, -4.85, 0)), False)
sketch8.addConstraint(Sketcher.Constraint("Coincident", 0, 2, 1, 1))
sketch8.addConstraint(Sketcher.Constraint("Coincident", 1, 2, 2, 1))
sketch8.addConstraint(Sketcher.Constraint("Coincident", 2, 2, 3, 1))
sketch8.addConstraint(Sketcher.Constraint("Coincident", 3, 2, 0, 1))
sketch8.addConstraint(Sketcher.Constraint("Vertical", 0))
sketch8.addConstraint(Sketcher.Constraint("Horizontal", 1))
sketch8.addConstraint(Sketcher.Constraint("Vertical", 2))
sketch8.addConstraint(Sketcher.Constraint("Horizontal", 3))
sketch8.addConstraint(Sketcher.Constraint("DistanceX", 1, 1, 1, 2, 2.0))
sketch8.addConstraint(Sketcher.Constraint("DistanceY", 0, 2, 0, 1, 4.3))
sketch8.addConstraint(Sketcher.Constraint("DistanceX", -1, 1, 0, 2, 18.0))
sketch8.addConstraint(Sketcher.Constraint("DistanceY", 0, 2, -1, 1, 9.15))
sketch8.setExpression("Constraints[8]", "Params.sketch8_width")
sketch8.setExpression("Constraints[9]", "Params.sketch8_height")
pocket7 = body.newObject("PartDesign::Pocket", "Pocket006")
pocket7.Profile = sketch8
pocket7.setExpression("Length", "Params.pocket7_length")

doc.recompute()
